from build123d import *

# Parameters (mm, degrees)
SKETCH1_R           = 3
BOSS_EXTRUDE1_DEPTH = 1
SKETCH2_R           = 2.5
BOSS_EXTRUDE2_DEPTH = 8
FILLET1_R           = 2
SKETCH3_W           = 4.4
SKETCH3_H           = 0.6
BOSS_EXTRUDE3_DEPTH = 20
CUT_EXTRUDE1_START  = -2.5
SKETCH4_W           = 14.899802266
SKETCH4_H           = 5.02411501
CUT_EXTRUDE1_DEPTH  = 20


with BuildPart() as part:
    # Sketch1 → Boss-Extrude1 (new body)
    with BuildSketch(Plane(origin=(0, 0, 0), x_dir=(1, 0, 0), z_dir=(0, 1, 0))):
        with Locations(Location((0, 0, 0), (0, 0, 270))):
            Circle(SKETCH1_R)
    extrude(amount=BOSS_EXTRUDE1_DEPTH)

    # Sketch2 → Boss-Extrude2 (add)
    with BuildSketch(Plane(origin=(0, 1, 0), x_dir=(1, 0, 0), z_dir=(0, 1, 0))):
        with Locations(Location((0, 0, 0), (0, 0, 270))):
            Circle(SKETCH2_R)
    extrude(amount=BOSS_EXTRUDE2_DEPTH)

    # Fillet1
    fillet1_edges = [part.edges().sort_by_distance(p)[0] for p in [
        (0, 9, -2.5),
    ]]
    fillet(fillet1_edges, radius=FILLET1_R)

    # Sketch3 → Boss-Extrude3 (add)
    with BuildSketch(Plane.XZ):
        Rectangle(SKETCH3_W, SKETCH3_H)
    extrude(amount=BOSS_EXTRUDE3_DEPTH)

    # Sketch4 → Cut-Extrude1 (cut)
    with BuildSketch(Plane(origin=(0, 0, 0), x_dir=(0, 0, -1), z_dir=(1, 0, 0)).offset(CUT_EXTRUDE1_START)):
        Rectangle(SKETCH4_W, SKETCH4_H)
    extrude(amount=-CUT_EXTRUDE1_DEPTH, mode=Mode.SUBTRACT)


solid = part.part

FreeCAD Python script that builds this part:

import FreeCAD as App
import Part
import Sketcher


def edges_at(feature, points):
    """Names of the edges that pass closest to the given points."""
    edges = feature.Shape.Edges
    near = lambda p: min(range(len(edges)), key=lambda i: edges[i].distToShape(Part.Vertex(*p))[0])
    return sorted({f"Edge{near(p) + 1}" for p in points})


def add_polygon(sketch, points):
    """Adds a closed chain of lines whose ends are joined by coincident constraints."""
    first, n = sketch.GeometryCount, len(points)
    for a, b in zip(points, points[1:] + points[:1]):
        sketch.addGeometry(Part.LineSegment(App.Vector(*a, 0), App.Vector(*b, 0)), False)
    for i in range(n):
        sketch.addConstraint(Sketcher.Constraint("Coincident", first + i, 2, first + (i + 1) % n, 1))

doc = App.newDocument("Part")
body = doc.addObject("PartDesign::Body", "Body")

# Sketch on XZ plane
sketch1 = body.newObject("Sketcher::SketchObject", "Sketch")
sketch1.AttachmentSupport = (doc.getObject("XZ_Plane"), [""])
sketch1.MapMode = "FlatFace"
sketch1.addGeometry(Part.Circle(App.Vector(0, 0, 0), App.Vector(0, 0, 1), 3), False)
sketch1.addConstraint([
    Sketcher.Constraint("Coincident", 0, 3, -1, 1),
    Sketcher.Constraint("Diameter", 0, 6.0),
])
pad1 = body.newObject("PartDesign::Pad", "Pad")
pad1.Profile = sketch1
pad1.Length = 1
pad1.Reversed = True

# Sketch on XZ plane
sketch2 = body.newObject("Sketcher::SketchObject", "Sketch001")
sketch2.AttachmentSupport = (doc.getObject("XZ_Plane"), [""])
sketch2.MapMode = "FlatFace"
sketch2.AttachmentOffset = App.Placement(App.Vector(0, 0, -1), App.Rotation())
sketch2.addGeometry(Part.Circle(App.Vector(0, 0, 0), App.Vector(0, 0, 1), 2.5), False)
sketch2.addConstraint([
    Sketcher.Constraint("Coincident", 0, 3, -1, 1),
    Sketcher.Constraint("Diameter", 0, 5.0),
])
pad2 = body.newObject("PartDesign::Pad", "Pad001")
pad2.Profile = sketch2
pad2.Length = 8
pad2.Reversed = True
doc.recompute()

fillet = body.newObject("PartDesign::Fillet", "Fillet")
fillet.Base = (pad2, edges_at(pad2, [(0, 9, -2.5)]))
fillet.Radius = 2

# Sketch on XZ plane
sketch3 = body.newObject("Sketcher::SketchObject", "Sketch002")
sketch3.AttachmentSupport = (doc.getObject("XZ_Plane"), [""])
sketch3.MapMode = "FlatFace"
add_polygon(sketch3, [(-2.2, 0.3), (-2.2, -0.3), (2.2, -0.3), (2.2, 0.3)])  # lines 0-3
sketch3.addConstraint([
    Sketcher.Constraint("Vertical", 0),
    Sketcher.Constraint("Horizontal", 1),
    Sketcher.Constraint("Vertical", 2),
    Sketcher.Constraint("Horizontal", 3),
    Sketcher.Constraint("Symmetric", 0, 2, 2, 2, -1, 1),
    Sketcher.Constraint("DistanceX", 1, 1, 1, 2, 4.4),
    Sketcher.Constraint("DistanceY", 0, 2, 0, 1, 0.6),
])
pad3 = body.newObject("PartDesign::Pad", "Pad002")
pad3.Profile = sketch3
pad3.Length = 20

# Sketch on YZ plane
sketch4 = body.newObject("Sketcher::SketchObject", "Sketch003")
sketch4.AttachmentSupport = (doc.getObject("YZ_Plane"), [""])
sketch4.MapMode = "FlatFace"
sketch4.AttachmentOffset = App.Placement(App.Vector(0, 0, -2.5), App.Rotation())
add_polygon(sketch4, [(3, 7), (-3, 7), (-3, -7), (3, -7)])  # lines 0-3
sketch4.addConstraint([
    Sketcher.Constraint("Horizontal", 0),
    Sketcher.Constraint("Vertical", 1),
    Sketcher.Constraint("Horizontal", 2),
    Sketcher.Constraint("Vertical", 3),
    Sketcher.Constraint("Symmetric", 0, 2, 2, 2, -1, 1),
    Sketcher.Constraint("DistanceY", -1, 1, 0, 2, 7.449901),
    Sketcher.Constraint("DistanceX", 0, 2, 0, 1, 5.024115),
])
pocket1 = body.newObject("PartDesign::Pocket", "Pocket")
pocket1.Profile = sketch4
pocket1.Length = 20

doc.recompute()
